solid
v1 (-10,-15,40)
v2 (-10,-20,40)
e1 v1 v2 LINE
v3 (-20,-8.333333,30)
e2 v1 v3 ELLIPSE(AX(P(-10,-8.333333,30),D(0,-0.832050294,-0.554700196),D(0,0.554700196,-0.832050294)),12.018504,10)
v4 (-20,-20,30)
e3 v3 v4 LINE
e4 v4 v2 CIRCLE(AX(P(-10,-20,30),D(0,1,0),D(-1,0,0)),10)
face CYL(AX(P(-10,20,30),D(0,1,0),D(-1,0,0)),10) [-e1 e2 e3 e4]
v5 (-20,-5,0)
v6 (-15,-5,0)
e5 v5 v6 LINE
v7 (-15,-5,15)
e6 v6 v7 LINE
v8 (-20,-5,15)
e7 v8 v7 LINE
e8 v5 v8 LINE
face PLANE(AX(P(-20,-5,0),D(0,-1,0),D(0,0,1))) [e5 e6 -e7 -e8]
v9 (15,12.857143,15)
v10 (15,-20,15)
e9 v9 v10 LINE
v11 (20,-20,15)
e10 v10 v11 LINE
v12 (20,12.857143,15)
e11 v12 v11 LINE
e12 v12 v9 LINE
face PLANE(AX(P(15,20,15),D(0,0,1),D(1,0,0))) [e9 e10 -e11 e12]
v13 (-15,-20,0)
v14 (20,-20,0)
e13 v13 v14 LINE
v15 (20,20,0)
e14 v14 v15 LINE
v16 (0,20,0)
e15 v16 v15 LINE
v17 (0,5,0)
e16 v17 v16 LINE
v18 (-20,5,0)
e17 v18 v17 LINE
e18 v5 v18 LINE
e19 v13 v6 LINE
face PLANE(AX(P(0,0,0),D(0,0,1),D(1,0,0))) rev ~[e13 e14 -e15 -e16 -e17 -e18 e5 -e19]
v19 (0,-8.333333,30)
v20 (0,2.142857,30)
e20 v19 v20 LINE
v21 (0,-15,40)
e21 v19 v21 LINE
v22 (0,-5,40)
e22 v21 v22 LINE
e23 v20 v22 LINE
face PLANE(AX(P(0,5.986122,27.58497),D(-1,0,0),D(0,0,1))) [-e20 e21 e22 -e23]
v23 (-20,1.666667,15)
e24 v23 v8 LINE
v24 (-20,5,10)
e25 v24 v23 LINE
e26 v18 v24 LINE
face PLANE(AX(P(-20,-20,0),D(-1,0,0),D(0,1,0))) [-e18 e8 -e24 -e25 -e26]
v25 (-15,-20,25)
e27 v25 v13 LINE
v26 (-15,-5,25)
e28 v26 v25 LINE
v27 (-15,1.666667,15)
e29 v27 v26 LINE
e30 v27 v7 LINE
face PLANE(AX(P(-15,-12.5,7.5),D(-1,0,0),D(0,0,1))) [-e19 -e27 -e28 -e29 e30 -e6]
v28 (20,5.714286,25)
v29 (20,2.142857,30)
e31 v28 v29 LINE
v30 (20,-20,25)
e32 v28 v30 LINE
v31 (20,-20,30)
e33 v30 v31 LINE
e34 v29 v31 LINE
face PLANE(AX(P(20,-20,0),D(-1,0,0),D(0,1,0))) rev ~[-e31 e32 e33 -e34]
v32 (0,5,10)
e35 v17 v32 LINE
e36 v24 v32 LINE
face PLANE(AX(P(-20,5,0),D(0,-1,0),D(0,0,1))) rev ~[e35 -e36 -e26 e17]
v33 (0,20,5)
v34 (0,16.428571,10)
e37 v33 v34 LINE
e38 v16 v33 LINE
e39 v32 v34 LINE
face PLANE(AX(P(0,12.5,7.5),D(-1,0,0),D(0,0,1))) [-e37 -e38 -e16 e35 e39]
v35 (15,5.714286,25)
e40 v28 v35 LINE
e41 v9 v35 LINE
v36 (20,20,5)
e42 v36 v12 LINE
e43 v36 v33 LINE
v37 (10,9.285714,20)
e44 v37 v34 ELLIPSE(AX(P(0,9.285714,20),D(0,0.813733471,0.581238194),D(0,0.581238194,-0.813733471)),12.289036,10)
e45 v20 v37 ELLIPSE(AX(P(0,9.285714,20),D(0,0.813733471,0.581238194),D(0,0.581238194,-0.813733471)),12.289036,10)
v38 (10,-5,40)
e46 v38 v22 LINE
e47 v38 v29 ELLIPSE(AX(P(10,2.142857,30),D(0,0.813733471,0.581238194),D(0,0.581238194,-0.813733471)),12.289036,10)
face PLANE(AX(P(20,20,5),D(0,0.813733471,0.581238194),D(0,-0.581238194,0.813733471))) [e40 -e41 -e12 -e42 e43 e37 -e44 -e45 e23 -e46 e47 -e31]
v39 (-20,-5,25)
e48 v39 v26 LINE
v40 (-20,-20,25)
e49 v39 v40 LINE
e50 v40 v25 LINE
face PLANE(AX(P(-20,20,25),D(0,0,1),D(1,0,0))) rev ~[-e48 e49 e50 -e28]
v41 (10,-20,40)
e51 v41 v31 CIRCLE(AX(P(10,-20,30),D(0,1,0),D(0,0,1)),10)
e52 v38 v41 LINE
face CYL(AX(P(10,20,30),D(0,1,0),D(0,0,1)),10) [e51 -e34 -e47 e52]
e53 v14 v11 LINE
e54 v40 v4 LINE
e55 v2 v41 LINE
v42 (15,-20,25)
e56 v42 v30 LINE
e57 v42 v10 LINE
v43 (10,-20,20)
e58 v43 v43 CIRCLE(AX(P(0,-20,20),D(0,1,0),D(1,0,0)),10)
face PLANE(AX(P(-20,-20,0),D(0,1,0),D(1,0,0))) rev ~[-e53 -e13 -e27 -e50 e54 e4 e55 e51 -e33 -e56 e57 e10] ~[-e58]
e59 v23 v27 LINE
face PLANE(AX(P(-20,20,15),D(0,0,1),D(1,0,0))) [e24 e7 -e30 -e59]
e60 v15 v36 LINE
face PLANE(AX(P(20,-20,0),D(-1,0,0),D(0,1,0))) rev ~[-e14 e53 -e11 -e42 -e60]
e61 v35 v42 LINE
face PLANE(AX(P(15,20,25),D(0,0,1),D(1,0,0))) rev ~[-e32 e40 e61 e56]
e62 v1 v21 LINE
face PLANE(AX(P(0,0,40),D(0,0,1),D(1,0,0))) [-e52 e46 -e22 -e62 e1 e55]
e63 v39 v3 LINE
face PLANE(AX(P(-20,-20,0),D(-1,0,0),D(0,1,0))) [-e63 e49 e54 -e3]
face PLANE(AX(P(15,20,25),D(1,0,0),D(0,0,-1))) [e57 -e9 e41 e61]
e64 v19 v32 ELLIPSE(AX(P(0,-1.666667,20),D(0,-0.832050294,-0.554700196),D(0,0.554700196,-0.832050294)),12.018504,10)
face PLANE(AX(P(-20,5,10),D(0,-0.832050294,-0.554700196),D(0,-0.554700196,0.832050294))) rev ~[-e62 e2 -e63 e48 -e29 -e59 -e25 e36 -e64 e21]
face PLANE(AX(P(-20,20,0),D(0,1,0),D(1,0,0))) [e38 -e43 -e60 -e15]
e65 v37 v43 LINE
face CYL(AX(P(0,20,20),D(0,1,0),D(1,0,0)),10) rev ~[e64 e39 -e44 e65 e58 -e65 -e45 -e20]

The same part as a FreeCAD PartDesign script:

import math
import FreeCAD as App
import Part
import Sketcher
from FreeCAD import Vector
Q = App.Units.Quantity

doc = App.newDocument("Part")
body = doc.addObject("PartDesign::Body", "Body")

sketch1 = body.newObject("Sketcher::SketchObject", "Sketch")
sketch1.AttachmentSupport = (doc.getObject("XY_Plane"), [""])
sketch1.MapMode = "FlatFace"
sketch1.addGeometry(Part.LineSegment(Vector(-20, 20, 0), Vector(-20, -20, 0)), False)
sketch1.addGeometry(Part.LineSegment(Vector(-20, -20, 0), Vector(20, -20, 0)), False)
sketch1.addGeometry(Part.LineSegment(Vector(20, -20, 0), Vector(20, 20, 0)), False)
sketch1.addGeometry(Part.LineSegment(Vector(20, 20, 0), Vector(-20, 20, 0)), False)
sketch1.addConstraint(Sketcher.Constraint("Coincident", 0, 2, 1, 1))
sketch1.addConstraint(Sketcher.Constraint("Coincident", 1, 2, 2, 1))
sketch1.addConstraint(Sketcher.Constraint("Coincident", 2, 2, 3, 1))
sketch1.addConstraint(Sketcher.Constraint("Coincident", 3, 2, 0, 1))
sketch1.addConstraint(Sketcher.Constraint("Vertical", 0))
sketch1.addConstraint(Sketcher.Constraint("Horizontal", 1))
sketch1.addConstraint(Sketcher.Constraint("Vertical", 2))
sketch1.addConstraint(Sketcher.Constraint("Horizontal", 3))
sketch1.addConstraint(Sketcher.Constraint("Symmetric", 0, 2, 2, 2, -1, 1))
sketch1.addConstraint(Sketcher.Constraint("Equal", 3, 0))
sketch1.addConstraint(Sketcher.Constraint("DistanceX", 1, 1, 1, 2, Q("40 mm")))
pad1 = body.newObject("PartDesign::Pad", "Pad")
pad1.Profile = sketch1
pad1.Length = 40

sketch2 = body.newObject("Sketcher::SketchObject", "Sketch001")
sketch2.AttachmentSupport = (doc.getObject("XZ_Plane"), [""])
sketch2.MapMode = "FlatFace"
sketch2.AttachmentOffset = App.Placement(Vector(0, 0, -20), App.Rotation())
sketch2.addGeometry(Part.Circle(Vector(0, 20, 0), Vector(0, 0, 1), 10), False)
sketch2.addConstraint(Sketcher.Constraint("PointOnObject", 0, 3, -2))
sketch2.addConstraint(Sketcher.Constraint("Diameter", 0, Q("20 mm")))
sketch2.addConstraint(Sketcher.Constraint("DistanceY", -1, 1, 0, 3, Q("20 mm")))
pocket1 = body.newObject("PartDesign::Pocket", "Pocket")
pocket1.Profile = sketch2
pocket1.Type = "ThroughAll"
pocket1.Reversed = True

sketch3 = body.newObject("Sketcher::SketchObject", "Sketch002")
sketch3.AttachmentSupport = (doc.getObject("XZ_Plane"), [""])
sketch3.MapMode = "FlatFace"
sketch3.AttachmentOffset = App.Placement(Vector(0, 0, -20), App.Rotation())
sketch3.addGeometry(Part.LineSegment(Vector(15, 15, 0), Vector(15, 25, 0)), False)
sketch3.addGeometry(Part.LineSegment(Vector(15, 25, 0), Vector(20, 25, 0)), False)
sketch3.addGeometry(Part.LineSegment(Vector(20, 25, 0), Vector(20, 15, 0)), False)
sketch3.addGeometry(Part.LineSegment(Vector(20, 15, 0), Vector(15, 15, 0)), False)
sketch3.addGeometry(Part.LineSegment(Vector(-20, 15, 0), Vector(-20, 25, 0)), False)
sketch3.addGeometry(Part.LineSegment(Vector(-20, 25, 0), Vector(-15, 25, 0)), False)
sketch3.addGeometry(Part.LineSegment(Vector(-15, 25, 0), Vector(-15, 15, 0)), False)
sketch3.addGeometry(Part.LineSegment(Vector(-15, 15, 0), Vector(-20, 15, 0)), False)
sketch3.addConstraint(Sketcher.Constraint("Coincident", 0, 2, 1, 1))
sketch3.addConstraint(Sketcher.Constraint("Coincident", 1, 2, 2, 1))
sketch3.addConstraint(Sketcher.Constraint("Coincident", 2, 2, 3, 1))
sketch3.addConstraint(Sketcher.Constraint("Coincident", 3, 2, 0, 1))
sketch3.addConstraint(Sketcher.Constraint("Coincident", 4, 2, 5, 1))
sketch3.addConstraint(Sketcher.Constraint("Coincident", 5, 2, 6, 1))
sketch3.addConstraint(Sketcher.Constraint("Coincident", 6, 2, 7, 1))
sketch3.addConstraint(Sketcher.Constraint("Coincident", 7, 2, 4, 1))
sketch3.addConstraint(Sketcher.Constraint("Vertical", 0))
sketch3.addConstraint(Sketcher.Constraint("Horizontal", 1))
sketch3.addConstraint(Sketcher.Constraint("Vertical", 2))
sketch3.addConstraint(Sketcher.Constraint("Horizontal", 3))
sketch3.addConstraint(Sketcher.Constraint("Vertical", 4))
sketch3.addConstraint(Sketcher.Constraint("Horizontal", 5))
sketch3.addConstraint(Sketcher.Constraint("Vertical", 6))
sketch3.addConstraint(Sketcher.Constraint("Horizontal", 7))
sketch3.addConstraint(Sketcher.Constraint("Symmetric", 1, 2, 4, 2, -2))
sketch3.addConstraint(Sketcher.Constraint("Symmetric", 3, 2, 6, 2, -2))
sketch3.addConstraint(Sketcher.Constraint("DistanceX", 1, 1, 1, 2, Q("5 mm")))
sketch3.addConstraint(Sketcher.Constraint("DistanceY", 0, 1, 0, 2, Q("10 mm")))
sketch3.addConstraint(Sketcher.Constraint("DistanceX", -1, 1, 0, 2, Q("15 mm")))
sketch3.addConstraint(Sketcher.Constraint("DistanceY", -1, 1, 0, 2, Q("25 mm")))
pocket2 = body.newObject("PartDesign::Pocket", "Pocket001")
pocket2.Profile = sketch3
pocket2.Type = "ThroughAll"
pocket2.Reversed = True

sketch4 = body.newObject("Sketcher::SketchObject", "Sketch003")
sketch4.AttachmentSupport = (doc.getObject("XZ_Plane"), [""])
sketch4.MapMode = "FlatFace"
sketch4.AttachmentOffset = App.Placement(Vector(0, 0, -20), App.Rotation())
sketch4.addGeometry(Part.LineSegment(Vector(-20, 40, 0), Vector(-10, 40, 0)), False)
sketch4.addGeometry(Part.ArcOfCircle(Part.Circle(Vector(-10, 30, 0), Vector(0, 0, 1), 10), math.radians(90), math.radians(180)), False)
sketch4.addGeometry(Part.LineSegment(Vector(-20, 30, 0), Vector(-20, 40, 0)), False)
sketch4.addConstraint(Sketcher.Constraint("Tangent", 0, 2, 1, 1))
sketch4.addConstraint(Sketcher.Constraint("Tangent", 1, 2, 2, 1))
sketch4.addConstraint(Sketcher.Constraint("Coincident", 2, 2, 0, 1))
sketch4.addConstraint(Sketcher.Constraint("Horizontal", 0))
sketch4.addConstraint(Sketcher.Constraint("Vertical", 2))
sketch4.addConstraint(Sketcher.Constraint("Radius", 1, Q("10 mm")))
sketch4.addConstraint(Sketcher.Constraint("DistanceX", 1, 3, -1, 1, Q("10 mm")))
sketch4.addConstraint(Sketcher.Constraint("DistanceY", -1, 1, 1, 3, Q("30 mm")))
pocket3 = body.newObject("PartDesign::Pocket", "Pocket002")
pocket3.Profile = sketch4
pocket3.Type = "ThroughAll"
pocket3.Reversed = True

sketch5 = body.newObject("Sketcher::SketchObject", "Sketch004")
sketch5.AttachmentSupport = (doc.getObject("XZ_Plane"), [""])
sketch5.MapMode = "FlatFace"
sketch5.AttachmentOffset = App.Placement(Vector(0, 0, -20), App.Rotation())
sketch5.addGeometry(Part.LineSegment(Vector(20, 40, 0), Vector(20, 30, 0)), False)
sketch5.addGeometry(Part.ArcOfCircle(Part.Circle(Vector(10, 30, 0), Vector(0, 0, 1), 10), math.radians(0), math.radians(90)), False)
sketch5.addGeometry(Part.LineSegment(Vector(10, 40, 0), Vector(20, 40, 0)), False)
sketch5.addConstraint(Sketcher.Constraint("Tangent", 0, 2, 1, 1))
sketch5.addConstraint(Sketcher.Constraint("Tangent", 1, 2, 2, 1))
sketch5.addConstraint(Sketcher.Constraint("Coincident", 2, 2, 0, 1))
sketch5.addConstraint(Sketcher.Constraint("Vertical", 0))
sketch5.addConstraint(Sketcher.Constraint("Horizontal", 2))
sketch5.addConstraint(Sketcher.Constraint("Radius", 1, Q("10 mm")))
sketch5.addConstraint(Sketcher.Constraint("DistanceX", -1, 1, 1, 3, Q("10 mm")))
sketch5.addConstraint(Sketcher.Constraint("DistanceY", -1, 1, 1, 3, Q("30 mm")))
pocket4 = body.newObject("PartDesign::Pocket", "Pocket003")
pocket4.Profile = sketch5
pocket4.Type = "ThroughAll"
pocket4.Reversed = True

sketch6 = body.newObject("Sketcher::SketchObject", "Sketch005")
sketch6.AttachmentSupport = (doc.getObject("YZ_Plane"), [""])
sketch6.MapMode = "FlatFace"
sketch6.AttachmentOffset = App.Placement(Vector(0, 0, -20), App.Rotation())
sketch6.addGeometry(Part.LineSegment(Vector(-5, 0, 0), Vector(-20, 0, 0)), False)
sketch6.addGeometry(Part.LineSegment(Vector(-20, 0, 0), Vector(-20, 15, 0)), False)
sketch6.addGeometry(Part.LineSegment(Vector(-20, 15, 0), Vector(-5, 15, 0)), False)
sketch6.addGeometry(Part.LineSegment(Vector(-5, 15, 0), Vector(-5, 0, 0)), False)
sketch6.addConstraint(Sketcher.Constraint("Coincident", 0, 2, 1, 1))
sketch6.addConstraint(Sketcher.Constraint("Coincident", 1, 2, 2, 1))
sketch6.addConstraint(Sketcher.Constraint("Coincident", 2, 2, 3, 1))
sketch6.addConstraint(Sketcher.Constraint("Coincident", 3, 2, 0, 1))
sketch6.addConstraint(Sketcher.Constraint("Horizontal", 0))
sketch6.addConstraint(Sketcher.Constraint("Vertical", 1))
sketch6.addConstraint(Sketcher.Constraint("Horizontal", 2))
sketch6.addConstraint(Sketcher.Constraint("Vertical", 3))
sketch6.addConstraint(Sketcher.Constraint("PointOnObject", 0, 2, -1))
sketch6.addConstraint(Sketcher.Constraint("Equal", 2, 1))
sketch6.addConstraint(Sketcher.Constraint("DistanceX", 0, 2, 0, 1, Q("15 mm")))
sketch6.addConstraint(Sketcher.Constraint("DistanceX", 0, 2, -1, 1, Q("20 mm")))
pocket5 = body.newObject("PartDesign::Pocket", "Pocket004")
pocket5.Profile = sketch6
pocket5.Length = 5
pocket5.Reversed = True

sketch7 = body.newObject("Sketcher::SketchObject", "Sketch006")
sketch7.AttachmentSupport = (doc.getObject("YZ_Plane"), [""])
sketch7.MapMode = "FlatFace"
sketch7.AttachmentOffset = App.Placement(Vector(0, 0, -20), App.Rotation())
sketch7.addGeometry(Part.LineSegment(Vector(20, 0, 0), Vector(5, 0, 0)), False)
sketch7.addGeometry(Part.LineSegment(Vector(5, 0, 0), Vector(5, 15, 0)), False)
sketch7.addGeometry(Part.LineSegment(Vector(5, 15, 0), Vector(20, 15, 0)), False)
sketch7.addGeometry(Part.LineSegment(Vector(20, 15, 0), Vector(20, 0, 0)), False)
sketch7.addConstraint(Sketcher.Constraint("Coincident", 0, 2, 1, 1))
sketch7.addConstraint(Sketcher.Constraint("Coincident", 1, 2, 2, 1))
sketch7.addConstraint(Sketcher.Constraint("Coincident", 2, 2, 3, 1))
sketch7.addConstraint(Sketcher.Constraint("Coincident", 3, 2, 0, 1))
sketch7.addConstraint(Sketcher.Constraint("Horizontal", 0))
sketch7.addConstraint(Sketcher.Constraint("Vertical", 1))
sketch7.addConstraint(Sketcher.Constraint("Horizontal", 2))
sketch7.addConstraint(Sketcher.Constraint("Vertical", 3))
sketch7.addConstraint(Sketcher.Constraint("PointOnObject", 0, 2, -1))
sketch7.addConstraint(Sketcher.Constraint("Equal", 2, 1))
sketch7.addConstraint(Sketcher.Constraint("DistanceX", 0, 2, 0, 1, Q("15 mm")))
sketch7.addConstraint(Sketcher.Constraint("DistanceX", -1, 1, 0, 2, Q("5 mm")))
pocket6 = body.newObject("PartDesign::Pocket", "Pocket005")
pocket6.Profile = sketch7
pocket6.Length = 20
pocket6.Reversed = True

sketch8 = body.newObject("Sketcher::SketchObject", "Sketch007")
sketch8.AttachmentSupport = (doc.getObject("YZ_Plane"), [""])
sketch8.MapMode = "FlatFace"
sketch8.AttachmentOffset = App.Placement(Vector(0, 0, -20), App.Rotation())
sketch8.addGeometry(Part.LineSegment(Vector(-15, 40, 0), Vector(5, 10, 0)), False)
sketch8.addGeometry(Part.LineSegment(Vector(5, 10, 0), Vector(20, 10, 0)), False)
sketch8.addGeometry(Part.LineSegment(Vector(20, 10, 0), Vector(20, 40, 0)), False)
sketch8.addGeometry(Part.LineSegment(Vector(20, 40, 0), Vector(-15, 40, 0)), False)
sketch8.addConstraint(Sketcher.Constraint("Coincident", 0, 2, 1, 1))
sketch8.addConstraint(Sketcher.Constraint("Coincident", 1, 2, 2, 1))
sketch8.addConstraint(Sketcher.Constraint("Coincident", 2, 2, 3, 1))
sketch8.addConstraint(Sketcher.Constraint("Coincident", 3, 2, 0, 1))
sketch8.addConstraint(Sketcher.Constraint("Horizontal", 1))
sketch8.addConstraint(Sketcher.Constraint("Vertical", 2))
sketch8.addConstraint(Sketcher.Constraint("Horizontal", 3))
sketch8.addConstraint(Sketcher.Constraint("DistanceX", 1, 1, 1, 2, Q("15 mm")))
sketch8.addConstraint(Sketcher.Constraint("DistanceX", 3, 2, 3, 1, Q("35 mm")))
sketch8.addConstraint(Sketcher.Constraint("DistanceY", 2, 1, 2, 2, Q("30 mm")))
sketch8.addConstraint(Sketcher.Constraint("DistanceX", -1, 1, 0, 2, Q("5 mm")))
sketch8.addConstraint(Sketcher.Constraint("DistanceY", -1, 1, 0, 2, Q("10 mm")))
pocket7 = body.newObject("PartDesign::Pocket", "Pocket006")
pocket7.Profile = sketch8
pocket7.Length = 20
pocket7.Reversed = True

sketch9 = body.newObject("Sketcher::SketchObject", "Sketch008")
sketch9.AttachmentSupport = (doc.getObject("YZ_Plane"), [""])
sketch9.MapMode = "FlatFace"
sketch9.AttachmentOffset = App.Placement(Vector(0, 0, 20), App.Rotation())
sketch9.addGeometry(Part.LineSegment(Vector(-5, 40, 0), Vector(20, 5, 0)), False)
sketch9.addGeometry(Part.LineSegment(Vector(20, 5, 0), Vector(20, 40, 0)), False)
sketch9.addGeometry(Part.LineSegment(Vector(20, 40, 0), Vector(-5, 40, 0)), False)
sketch9.addConstraint(Sketcher.Constraint("Coincident", 0, 2, 1, 1))
sketch9.addConstraint(Sketcher.Constraint("Coincident", 1, 2, 2, 1))
sketch9.addConstraint(Sketcher.Constraint("Coincident", 2, 2, 0, 1))
sketch9.addConstraint(Sketcher.Constraint("Vertical", 1))
sketch9.addConstraint(Sketcher.Constraint("Horizontal", 2))
sketch9.addConstraint(Sketcher.Constraint("DistanceX", 2, 2, 2, 1, Q("25 mm")))
sketch9.addConstraint(Sketcher.Constraint("DistanceY", 1, 1, 1, 2, Q("35 mm")))
sketch9.addConstraint(Sketcher.Constraint("DistanceX", -1, 1, 0, 2, Q("20 mm")))
sketch9.addConstraint(Sketcher.Constraint("DistanceY", -1, 1, 0, 2, Q("5 mm")))
pocket8 = body.newObject("PartDesign::Pocket", "Pocket007")
pocket8.Profile = sketch9
pocket8.Length = 20

doc.recompute()
